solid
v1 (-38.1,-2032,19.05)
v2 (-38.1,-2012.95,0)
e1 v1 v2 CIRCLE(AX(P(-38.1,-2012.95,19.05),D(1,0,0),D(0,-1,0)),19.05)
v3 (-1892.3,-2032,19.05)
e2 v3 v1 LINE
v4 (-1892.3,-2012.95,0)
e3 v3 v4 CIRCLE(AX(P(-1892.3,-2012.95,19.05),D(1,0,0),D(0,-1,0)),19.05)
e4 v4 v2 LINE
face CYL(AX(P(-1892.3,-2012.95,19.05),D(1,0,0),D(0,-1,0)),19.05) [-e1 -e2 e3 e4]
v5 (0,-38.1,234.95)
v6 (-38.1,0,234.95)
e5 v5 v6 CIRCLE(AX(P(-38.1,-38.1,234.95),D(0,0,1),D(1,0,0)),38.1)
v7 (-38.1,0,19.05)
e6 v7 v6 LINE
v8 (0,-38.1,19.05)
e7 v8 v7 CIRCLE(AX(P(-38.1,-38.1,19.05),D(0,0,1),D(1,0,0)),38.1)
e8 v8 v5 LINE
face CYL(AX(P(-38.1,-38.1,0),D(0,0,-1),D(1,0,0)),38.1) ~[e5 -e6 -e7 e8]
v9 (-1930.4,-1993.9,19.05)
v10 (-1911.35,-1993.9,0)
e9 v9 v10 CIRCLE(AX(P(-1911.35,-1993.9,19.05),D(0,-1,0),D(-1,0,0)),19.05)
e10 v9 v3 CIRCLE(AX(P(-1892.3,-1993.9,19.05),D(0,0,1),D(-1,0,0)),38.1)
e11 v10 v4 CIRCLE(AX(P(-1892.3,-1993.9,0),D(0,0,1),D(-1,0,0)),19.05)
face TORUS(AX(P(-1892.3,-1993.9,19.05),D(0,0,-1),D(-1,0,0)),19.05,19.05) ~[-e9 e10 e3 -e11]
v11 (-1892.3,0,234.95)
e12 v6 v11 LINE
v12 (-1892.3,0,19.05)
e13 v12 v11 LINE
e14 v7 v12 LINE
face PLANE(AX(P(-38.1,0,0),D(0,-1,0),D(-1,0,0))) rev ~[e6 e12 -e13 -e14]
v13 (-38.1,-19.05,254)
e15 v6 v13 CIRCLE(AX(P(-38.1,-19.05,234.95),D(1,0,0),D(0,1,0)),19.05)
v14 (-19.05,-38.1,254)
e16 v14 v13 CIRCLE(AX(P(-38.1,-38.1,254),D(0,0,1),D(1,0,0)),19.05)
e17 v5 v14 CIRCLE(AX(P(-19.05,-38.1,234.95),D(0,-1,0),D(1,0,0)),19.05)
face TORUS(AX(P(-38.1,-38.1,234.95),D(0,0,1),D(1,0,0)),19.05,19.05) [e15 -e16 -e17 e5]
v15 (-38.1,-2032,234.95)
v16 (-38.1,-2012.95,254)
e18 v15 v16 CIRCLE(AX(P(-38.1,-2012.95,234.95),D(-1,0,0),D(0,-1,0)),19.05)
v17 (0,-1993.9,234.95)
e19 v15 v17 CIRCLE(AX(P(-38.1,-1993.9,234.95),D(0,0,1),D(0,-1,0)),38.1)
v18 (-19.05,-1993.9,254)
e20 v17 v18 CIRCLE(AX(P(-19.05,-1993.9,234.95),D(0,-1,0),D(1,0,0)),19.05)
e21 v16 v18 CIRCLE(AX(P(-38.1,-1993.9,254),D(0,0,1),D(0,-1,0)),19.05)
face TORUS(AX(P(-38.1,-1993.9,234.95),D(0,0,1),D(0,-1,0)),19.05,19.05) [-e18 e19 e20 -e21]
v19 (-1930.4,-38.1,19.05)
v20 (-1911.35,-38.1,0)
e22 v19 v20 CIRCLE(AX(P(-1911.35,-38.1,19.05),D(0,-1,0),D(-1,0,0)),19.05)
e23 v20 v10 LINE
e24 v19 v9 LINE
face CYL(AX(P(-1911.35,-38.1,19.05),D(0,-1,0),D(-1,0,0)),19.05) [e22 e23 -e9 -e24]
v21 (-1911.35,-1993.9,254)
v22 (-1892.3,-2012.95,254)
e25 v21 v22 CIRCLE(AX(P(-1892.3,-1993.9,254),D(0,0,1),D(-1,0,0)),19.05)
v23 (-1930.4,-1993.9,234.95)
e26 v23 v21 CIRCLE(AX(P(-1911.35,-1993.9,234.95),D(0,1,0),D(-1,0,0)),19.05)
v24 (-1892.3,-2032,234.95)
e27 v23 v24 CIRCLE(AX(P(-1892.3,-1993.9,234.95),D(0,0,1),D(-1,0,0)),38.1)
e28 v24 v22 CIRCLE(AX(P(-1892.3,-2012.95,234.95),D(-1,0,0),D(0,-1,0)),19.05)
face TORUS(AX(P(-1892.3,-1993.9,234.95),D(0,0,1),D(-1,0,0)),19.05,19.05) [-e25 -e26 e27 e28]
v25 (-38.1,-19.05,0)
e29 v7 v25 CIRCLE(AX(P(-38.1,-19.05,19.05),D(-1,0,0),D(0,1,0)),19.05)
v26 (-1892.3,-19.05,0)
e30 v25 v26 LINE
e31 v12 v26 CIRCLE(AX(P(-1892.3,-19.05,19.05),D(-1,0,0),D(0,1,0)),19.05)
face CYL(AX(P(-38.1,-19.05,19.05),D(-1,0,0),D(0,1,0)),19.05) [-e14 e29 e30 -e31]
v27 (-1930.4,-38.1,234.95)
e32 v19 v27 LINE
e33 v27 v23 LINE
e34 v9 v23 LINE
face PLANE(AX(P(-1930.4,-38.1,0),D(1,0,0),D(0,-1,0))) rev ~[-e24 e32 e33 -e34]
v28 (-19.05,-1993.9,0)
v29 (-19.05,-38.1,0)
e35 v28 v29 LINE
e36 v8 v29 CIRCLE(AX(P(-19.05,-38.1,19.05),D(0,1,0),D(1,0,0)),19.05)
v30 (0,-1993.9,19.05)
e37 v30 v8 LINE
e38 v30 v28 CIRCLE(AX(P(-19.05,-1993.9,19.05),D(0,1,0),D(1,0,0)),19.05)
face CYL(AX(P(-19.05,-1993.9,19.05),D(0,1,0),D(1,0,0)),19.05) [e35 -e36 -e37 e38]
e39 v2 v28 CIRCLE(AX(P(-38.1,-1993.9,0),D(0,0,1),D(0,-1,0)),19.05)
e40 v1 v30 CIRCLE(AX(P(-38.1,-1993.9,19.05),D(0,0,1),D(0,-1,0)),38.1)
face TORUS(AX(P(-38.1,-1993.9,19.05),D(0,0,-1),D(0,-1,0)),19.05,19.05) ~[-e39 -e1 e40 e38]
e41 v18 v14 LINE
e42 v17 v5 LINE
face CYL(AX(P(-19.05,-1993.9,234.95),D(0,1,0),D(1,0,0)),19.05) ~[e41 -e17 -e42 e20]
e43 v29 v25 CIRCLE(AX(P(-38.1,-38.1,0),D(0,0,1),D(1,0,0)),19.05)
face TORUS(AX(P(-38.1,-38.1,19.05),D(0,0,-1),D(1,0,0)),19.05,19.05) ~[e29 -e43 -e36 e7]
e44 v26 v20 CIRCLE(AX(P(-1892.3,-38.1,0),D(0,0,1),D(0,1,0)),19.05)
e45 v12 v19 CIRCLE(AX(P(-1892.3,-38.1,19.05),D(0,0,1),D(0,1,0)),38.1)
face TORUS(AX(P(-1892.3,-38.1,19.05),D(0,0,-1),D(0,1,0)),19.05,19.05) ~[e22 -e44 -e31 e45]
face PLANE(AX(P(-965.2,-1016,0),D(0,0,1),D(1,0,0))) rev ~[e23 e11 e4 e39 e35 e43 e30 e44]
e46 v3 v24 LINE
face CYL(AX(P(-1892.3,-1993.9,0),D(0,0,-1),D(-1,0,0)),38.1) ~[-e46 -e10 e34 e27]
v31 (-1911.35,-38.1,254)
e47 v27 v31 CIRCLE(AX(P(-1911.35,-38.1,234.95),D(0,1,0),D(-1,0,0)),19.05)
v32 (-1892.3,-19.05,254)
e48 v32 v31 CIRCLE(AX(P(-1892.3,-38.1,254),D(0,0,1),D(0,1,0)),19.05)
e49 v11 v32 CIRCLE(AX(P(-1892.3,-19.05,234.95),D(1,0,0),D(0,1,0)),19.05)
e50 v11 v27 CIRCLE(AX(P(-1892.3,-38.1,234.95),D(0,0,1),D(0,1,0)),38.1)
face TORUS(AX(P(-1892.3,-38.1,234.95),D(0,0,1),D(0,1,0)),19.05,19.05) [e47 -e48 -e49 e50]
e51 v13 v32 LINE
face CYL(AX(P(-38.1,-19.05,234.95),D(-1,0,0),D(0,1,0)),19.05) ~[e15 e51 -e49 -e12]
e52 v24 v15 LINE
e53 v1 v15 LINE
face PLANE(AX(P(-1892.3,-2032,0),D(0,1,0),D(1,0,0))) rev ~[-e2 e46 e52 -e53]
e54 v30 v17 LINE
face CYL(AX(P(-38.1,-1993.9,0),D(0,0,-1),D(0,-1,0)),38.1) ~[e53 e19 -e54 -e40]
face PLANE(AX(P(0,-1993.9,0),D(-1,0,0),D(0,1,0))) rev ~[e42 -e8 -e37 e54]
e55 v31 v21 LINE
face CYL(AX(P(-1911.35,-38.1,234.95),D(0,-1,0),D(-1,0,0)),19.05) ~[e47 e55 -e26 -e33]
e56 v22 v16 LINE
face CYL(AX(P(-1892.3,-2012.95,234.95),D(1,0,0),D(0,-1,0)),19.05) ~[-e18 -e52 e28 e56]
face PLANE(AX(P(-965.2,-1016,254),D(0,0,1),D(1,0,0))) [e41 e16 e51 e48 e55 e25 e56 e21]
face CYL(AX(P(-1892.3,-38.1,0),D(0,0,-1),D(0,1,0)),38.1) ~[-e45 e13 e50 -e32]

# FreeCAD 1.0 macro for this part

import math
import FreeCAD as App
import Part
import Sketcher
Q = App.Units.Quantity


def edges_at(feature, points):
    """Names of the edges that pass closest to the given points."""
    edges = feature.Shape.Edges
    near = lambda p: min(range(len(edges)), key=lambda i: edges[i].distToShape(Part.Vertex(*p))[0])
    return sorted({f"Edge{near(p) + 1}" for p in points})

doc = App.newDocument("Part")
body = doc.addObject("PartDesign::Body", "Body")

# Sketch on XY plane
sketch1 = body.newObject("Sketcher::SketchObject", "Sketch")
sketch1.AttachmentSupport = (doc.getObject("XY_Plane"), [""])
sketch1.MapMode = "FlatFace"
sketch1.addGeometry(Part.ArcOfCircle(Part.Circle(App.Vector(-38.1, -38.1, 0), App.Vector(0, 0, 1), 38.1), math.radians(0), math.radians(90)), False)
sketch1.addGeometry(Part.LineSegment(App.Vector(-38.1, 0, 0), App.Vector(-1892.3, 0, 0)), False)
sketch1.addGeometry(Part.ArcOfCircle(Part.Circle(App.Vector(-1892.3, -38.1, 0), App.Vector(0, 0, 1), 38.1), math.radians(90), math.radians(180)), False)
sketch1.addGeometry(Part.LineSegment(App.Vector(-1930.4, -38.1, 0), App.Vector(-1930.4, -1993.9, 0)), False)
sketch1.addGeometry(Part.ArcOfCircle(Part.Circle(App.Vector(-1892.3, -1993.9, 0), App.Vector(0, 0, 1), 38.1), math.radians(180), math.radians(270)), False)
sketch1.addGeometry(Part.LineSegment(App.Vector(-1892.3, -2032, 0), App.Vector(-38.1, -2032, 0)), False)
sketch1.addGeometry(Part.ArcOfCircle(Part.Circle(App.Vector(-38.1, -1993.9, 0), App.Vector(0, 0, 1), 38.1), math.radians(-90), math.radians(0)), False)
sketch1.addGeometry(Part.LineSegment(App.Vector(0, -1993.9, 0), App.Vector(0, -38.1, 0)), False)
sketch1.addConstraint(Sketcher.Constraint("Tangent", 0, 2, 1, 1))
sketch1.addConstraint(Sketcher.Constraint("Tangent", 1, 2, 2, 1))
sketch1.addConstraint(Sketcher.Constraint("Tangent", 2, 2, 3, 1))
sketch1.addConstraint(Sketcher.Constraint("Tangent", 3, 2, 4, 1))
sketch1.addConstraint(Sketcher.Constraint("Tangent", 4, 2, 5, 1))
sketch1.addConstraint(Sketcher.Constraint("Tangent", 5, 2, 6, 1))
sketch1.addConstraint(Sketcher.Constraint("Tangent", 6, 2, 7, 1))
sketch1.addConstraint(Sketcher.Constraint("Tangent", 7, 2, 0, 1))
sketch1.addConstraint(Sketcher.Constraint("Horizontal", 1))
sketch1.addConstraint(Sketcher.Constraint("Vertical", 3))
sketch1.addConstraint(Sketcher.Constraint("Horizontal", 5))
sketch1.addConstraint(Sketcher.Constraint("Vertical", 7))
sketch1.addConstraint(Sketcher.Constraint("Equal", 0, 2))
sketch1.addConstraint(Sketcher.Constraint("Equal", 2, 4))
sketch1.addConstraint(Sketcher.Constraint("Equal", 4, 6))
sketch1.addConstraint(Sketcher.Constraint("PointOnObject", 0, 2, -1))
sketch1.addConstraint(Sketcher.Constraint("PointOnObject", 6, 2, -2))
sketch1.addConstraint(Sketcher.Constraint("Radius", 0, Q("1.5 in")))
sketch1.addConstraint(Sketcher.Constraint("DistanceX", 1, 2, 1, 1, Q("73 in")))
sketch1.addConstraint(Sketcher.Constraint("DistanceY", 3, 2, 3, 1, Q("77 in")))
pad1 = body.newObject("PartDesign::Pad", "Pad")
pad1.Profile = sketch1
pad1.Length = Q("10 in")
doc.recompute()

fillet = body.newObject("PartDesign::Fillet", "Fillet")
fillet.Base = (pad1, edges_at(pad1, [
    (0, -1016, 254),
    (-11.159, -11.159, 254),
    (-965.2, 0, 254),
    (-1919.241, -11.159, 254),
    (-1930.4, -1016, 254),
    (-1919.241, -2020.841, 254),
    (-965.2, -2032, 254),
    (-11.159, -2020.841, 254),
]))
fillet.Radius = Q("0.75 in")
doc.recompute()

fillet2 = body.newObject("PartDesign::Fillet", "Fillet001")
fillet2.Base = (fillet, edges_at(fillet, [
    (0, -1016, 0),
    (-11.159, -11.159, 0),
    (-965.2, 0, 0),
    (-1919.241, -11.159, 0),
    (-1930.4, -1016, 0),
    (-1919.241, -2020.841, 0),
    (-965.2, -2032, 0),
    (-11.159, -2020.841, 0),
]))
fillet2.Radius = Q("0.75 in")

doc.recompute()
